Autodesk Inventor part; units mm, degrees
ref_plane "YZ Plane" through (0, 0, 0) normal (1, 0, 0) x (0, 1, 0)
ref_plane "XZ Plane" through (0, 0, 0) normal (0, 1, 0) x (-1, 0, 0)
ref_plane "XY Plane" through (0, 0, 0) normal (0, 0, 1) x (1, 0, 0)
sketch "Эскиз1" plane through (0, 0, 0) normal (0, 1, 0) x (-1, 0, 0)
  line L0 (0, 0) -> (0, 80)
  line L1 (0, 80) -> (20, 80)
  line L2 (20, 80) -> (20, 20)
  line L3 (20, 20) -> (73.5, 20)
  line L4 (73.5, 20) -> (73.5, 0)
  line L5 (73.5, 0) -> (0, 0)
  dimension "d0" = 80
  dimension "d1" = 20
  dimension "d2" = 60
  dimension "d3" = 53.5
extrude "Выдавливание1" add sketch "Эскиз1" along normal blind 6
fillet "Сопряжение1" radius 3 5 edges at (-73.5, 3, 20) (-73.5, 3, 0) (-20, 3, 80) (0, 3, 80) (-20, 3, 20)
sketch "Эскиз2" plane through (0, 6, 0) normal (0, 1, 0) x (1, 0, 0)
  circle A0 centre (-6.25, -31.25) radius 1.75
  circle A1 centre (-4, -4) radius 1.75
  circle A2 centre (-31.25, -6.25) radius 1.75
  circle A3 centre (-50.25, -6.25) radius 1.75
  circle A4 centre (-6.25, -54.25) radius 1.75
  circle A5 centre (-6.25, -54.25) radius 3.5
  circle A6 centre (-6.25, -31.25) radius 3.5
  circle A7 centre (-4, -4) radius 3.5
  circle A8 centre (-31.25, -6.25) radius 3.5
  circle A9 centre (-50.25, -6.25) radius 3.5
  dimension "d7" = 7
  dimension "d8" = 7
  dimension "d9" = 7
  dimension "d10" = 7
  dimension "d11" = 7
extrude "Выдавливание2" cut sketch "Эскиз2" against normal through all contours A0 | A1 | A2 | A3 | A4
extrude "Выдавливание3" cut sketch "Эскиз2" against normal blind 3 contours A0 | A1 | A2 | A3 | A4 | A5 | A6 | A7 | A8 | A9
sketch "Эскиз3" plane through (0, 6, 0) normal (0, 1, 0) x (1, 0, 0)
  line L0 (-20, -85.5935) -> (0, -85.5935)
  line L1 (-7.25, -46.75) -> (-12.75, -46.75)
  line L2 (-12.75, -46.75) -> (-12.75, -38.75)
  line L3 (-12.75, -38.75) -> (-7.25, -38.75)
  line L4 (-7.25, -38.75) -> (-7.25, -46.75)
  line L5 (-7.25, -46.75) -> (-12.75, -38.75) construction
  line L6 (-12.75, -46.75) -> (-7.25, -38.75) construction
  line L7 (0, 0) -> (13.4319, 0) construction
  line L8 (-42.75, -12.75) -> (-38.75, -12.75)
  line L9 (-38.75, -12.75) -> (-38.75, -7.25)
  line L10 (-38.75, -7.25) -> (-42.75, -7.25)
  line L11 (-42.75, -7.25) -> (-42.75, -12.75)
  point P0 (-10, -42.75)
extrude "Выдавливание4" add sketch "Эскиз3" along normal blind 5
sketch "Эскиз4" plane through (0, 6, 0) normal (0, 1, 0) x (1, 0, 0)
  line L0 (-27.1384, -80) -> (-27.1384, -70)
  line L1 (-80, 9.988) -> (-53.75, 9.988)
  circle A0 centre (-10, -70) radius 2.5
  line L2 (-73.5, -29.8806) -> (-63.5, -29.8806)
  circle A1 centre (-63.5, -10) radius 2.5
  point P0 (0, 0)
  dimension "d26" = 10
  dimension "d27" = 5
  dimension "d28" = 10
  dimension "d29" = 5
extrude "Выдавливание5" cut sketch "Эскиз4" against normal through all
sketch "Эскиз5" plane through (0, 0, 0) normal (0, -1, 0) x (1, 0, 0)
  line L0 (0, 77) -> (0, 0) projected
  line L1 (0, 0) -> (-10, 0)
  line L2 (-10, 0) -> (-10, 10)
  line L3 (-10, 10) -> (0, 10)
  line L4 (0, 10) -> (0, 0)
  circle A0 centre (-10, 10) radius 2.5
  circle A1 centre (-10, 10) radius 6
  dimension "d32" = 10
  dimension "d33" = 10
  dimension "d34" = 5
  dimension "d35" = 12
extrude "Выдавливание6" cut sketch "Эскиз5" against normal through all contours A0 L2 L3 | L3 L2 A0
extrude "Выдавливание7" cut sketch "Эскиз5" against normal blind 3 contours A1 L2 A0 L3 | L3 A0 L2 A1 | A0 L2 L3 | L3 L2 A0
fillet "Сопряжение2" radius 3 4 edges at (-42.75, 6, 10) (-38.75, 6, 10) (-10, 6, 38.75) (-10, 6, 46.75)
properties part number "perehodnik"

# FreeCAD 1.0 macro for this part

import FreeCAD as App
import Part
import Sketcher


def edges_at(feature, points):
    """Names of the edges that pass closest to the given points."""
    edges = feature.Shape.Edges
    near = lambda p: min(range(len(edges)), key=lambda i: edges[i].distToShape(Part.Vertex(*p))[0])
    return sorted({f"Edge{near(p) + 1}" for p in points})


def add_polygon(sketch, points):
    """Adds a closed chain of lines whose ends are joined by coincident constraints."""
    first, n = sketch.GeometryCount, len(points)
    for a, b in zip(points, points[1:] + points[:1]):
        sketch.addGeometry(Part.LineSegment(App.Vector(*a, 0), App.Vector(*b, 0)), False)
    for i in range(n):
        sketch.addConstraint(Sketcher.Constraint("Coincident", first + i, 2, first + (i + 1) % n, 1))

doc = App.newDocument("Part")
body = doc.addObject("PartDesign::Body", "Body")

sketch1 = body.newObject("Sketcher::SketchObject", "Sketch")
sketch1.AttachmentSupport = (doc.getObject("XZ_Plane"), [""])
sketch1.MapMode = "FlatFace"
add_polygon(sketch1, [(0, 80), (0, 0), (-74, 0), (-74, 20), (-20, 20), (-20, 80)])
sketch1.addConstraint(Sketcher.Constraint("Vertical", 0))
sketch1.addConstraint(Sketcher.Constraint("Horizontal", 1))
sketch1.addConstraint(Sketcher.Constraint("Vertical", 2))
sketch1.addConstraint(Sketcher.Constraint("Horizontal", 3))
sketch1.addConstraint(Sketcher.Constraint("Vertical", 4))
sketch1.addConstraint(Sketcher.Constraint("Horizontal", 5))
sketch1.addConstraint(Sketcher.Constraint("Coincident", 0, 2, -1, 1))
sketch1.addConstraint(Sketcher.Constraint("Equal", 5, 2))
sketch1.addConstraint(Sketcher.Constraint("DistanceX", 5, 1, 5, 2, 20.0))
sketch1.addConstraint(Sketcher.Constraint("DistanceY", 0, 2, 0, 1, 80.0))
sketch1.addConstraint(Sketcher.Constraint("DistanceX", 3, 1, 3, 2, 53.5))
pad1 = body.newObject("PartDesign::Pad", "Pad")
pad1.Profile = sketch1
pad1.Length = 6
pad1.Reversed = True
doc.recompute()

fillet = body.newObject("PartDesign::Fillet", "Fillet")
fillet.Base = (pad1, edges_at(pad1, [
    (-73.5, 3, 20),
    (-73.5, 3, 0),
    (-20, 3, 80),
    (0, 3, 80),
    (-20, 3, 20),
]))
fillet.Radius = 3

sketch2 = body.newObject("Sketcher::SketchObject", "Sketch001")
sketch2.AttachmentSupport = (doc.getObject("XZ_Plane"), [""])
sketch2.MapMode = "FlatFace"
sketch2.AttachmentOffset = App.Placement(App.Vector(0, 0, -6), App.Rotation())
sketch2.addGeometry(Part.Circle(App.Vector(-6.2, 31.2, 0), App.Vector(0, 0, 1), 1.8), False)
sketch2.addGeometry(Part.Circle(App.Vector(-4, 4, 0), App.Vector(0, 0, 1), 1.8), False)
sketch2.addGeometry(Part.Circle(App.Vector(-31.2, 6.2, 0), App.Vector(0, 0, 1), 1.8), False)
sketch2.addGeometry(Part.Circle(App.Vector(-50.2, 6.2, 0), App.Vector(0, 0, 1), 1.8), False)
sketch2.addGeometry(Part.Circle(App.Vector(-6.2, 54.2, 0), App.Vector(0, 0, 1), 1.8), False)
sketch2.addConstraint(Sketcher.Constraint("Equal", 0, 1))
sketch2.addConstraint(Sketcher.Constraint("Equal", 1, 2))
sketch2.addConstraint(Sketcher.Constraint("Equal", 2, 3))
sketch2.addConstraint(Sketcher.Constraint("Equal", 3, 4))
sketch2.addConstraint(Sketcher.Constraint("Horizontal", 2, 3, 3, 3))
sketch2.addConstraint(Sketcher.Constraint("Vertical", 0, 3, 4, 3))
sketch2.addConstraint(Sketcher.Constraint("Diameter", 0, 3.5))
sketch2.addConstraint(Sketcher.Constraint("DistanceX", 1, 3, -1, 1, 4.0))
sketch2.addConstraint(Sketcher.Constraint("DistanceY", -1, 1, 1, 3, 4.0))
sketch2.addConstraint(Sketcher.Constraint("DistanceX", 2, 3, 0, 3, 25.0))
sketch2.addConstraint(Sketcher.Constraint("DistanceY", 2, 3, 0, 3, 25.0))
sketch2.addConstraint(Sketcher.Constraint("DistanceX", 3, 3, 2, 3, 19.0))
sketch2.addConstraint(Sketcher.Constraint("DistanceY", 0, 3, 4, 3, 23.0))
sketch2.addConstraint(Sketcher.Constraint("DistanceX", 0, 3, -1, 1, 6.25))
sketch2.addConstraint(Sketcher.Constraint("DistanceY", -1, 1, 0, 3, 31.25))
pocket1 = body.newObject("PartDesign::Pocket", "Pocket")
pocket1.Profile = sketch2
pocket1.Type = "ThroughAll"
pocket1.Reversed = True

sketch3 = body.newObject("Sketcher::SketchObject", "Sketch002")
sketch3.AttachmentSupport = (doc.getObject("XZ_Plane"), [""])
sketch3.MapMode = "FlatFace"
sketch3.AttachmentOffset = App.Placement(App.Vector(0, 0, -6), App.Rotation())
sketch3.addGeometry(Part.Circle(App.Vector(-6.2, 31.2, 0), App.Vector(0, 0, 1), 3.5), False)
sketch3.addGeometry(Part.Circle(App.Vector(-4, 4, 0), App.Vector(0, 0, 1), 3.5), False)
sketch3.addGeometry(Part.Circle(App.Vector(-31.2, 6.2, 0), App.Vector(0, 0, 1), 3.5), False)
sketch3.addGeometry(Part.Circle(App.Vector(-50.2, 6.2, 0), App.Vector(0, 0, 1), 3.5), False)
sketch3.addGeometry(Part.Circle(App.Vector(-6.2, 54.2, 0), App.Vector(0, 0, 1), 3.5), False)
sketch3.addConstraint(Sketcher.Constraint("Equal", 0, 1))
sketch3.addConstraint(Sketcher.Constraint("Equal", 1, 2))
sketch3.addConstraint(Sketcher.Constraint("Equal", 2, 3))
sketch3.addConstraint(Sketcher.Constraint("Equal", 3, 4))
sketch3.addConstraint(Sketcher.Constraint("Horizontal", 2, 3, 3, 3))
sketch3.addConstraint(Sketcher.Constraint("Vertical", 0, 3, 4, 3))
sketch3.addConstraint(Sketcher.Constraint("Diameter", 0, 7.0))
sketch3.addConstraint(Sketcher.Constraint("DistanceX", 1, 3, -1, 1, 4.0))
sketch3.addConstraint(Sketcher.Constraint("DistanceY", -1, 1, 1, 3, 4.0))
sketch3.addConstraint(Sketcher.Constraint("DistanceX", 2, 3, 0, 3, 25.0))
sketch3.addConstraint(Sketcher.Constraint("DistanceY", 2, 3, 0, 3, 25.0))
sketch3.addConstraint(Sketcher.Constraint("DistanceX", 3, 3, 2, 3, 19.0))
sketch3.addConstraint(Sketcher.Constraint("DistanceY", 0, 3, 4, 3, 23.0))
sketch3.addConstraint(Sketcher.Constraint("DistanceX", 0, 3, -1, 1, 6.25))
sketch3.addConstraint(Sketcher.Constraint("DistanceY", -1, 1, 0, 3, 31.25))
pocket2 = body.newObject("PartDesign::Pocket", "Pocket001")
pocket2.Profile = sketch3
pocket2.Length = 3
pocket2.Reversed = True

sketch4 = body.newObject("Sketcher::SketchObject", "Sketch003")
sketch4.AttachmentSupport = (doc.getObject("XZ_Plane"), [""])
sketch4.MapMode = "FlatFace"
sketch4.AttachmentOffset = App.Placement(App.Vector(0, 0, -6), App.Rotation())
add_polygon(sketch4, [(-12.8, 46.8), (-7.2, 46.8), (-7.2, 38.8), (-12.8, 38.8)])
add_polygon(sketch4, [(-42.8, 7.2), (-42.8, 12.8), (-38.8, 12.8), (-38.8, 7.2)])
sketch4.addConstraint(Sketcher.Constraint("Horizontal", 0))
sketch4.addConstraint(Sketcher.Constraint("Vertical", 1))
sketch4.addConstraint(Sketcher.Constraint("Horizontal", 2))
sketch4.addConstraint(Sketcher.Constraint("Vertical", 3))
sketch4.addConstraint(Sketcher.Constraint("Vertical", 4))
sketch4.addConstraint(Sketcher.Constraint("Horizontal", 5))
sketch4.addConstraint(Sketcher.Constraint("Vertical", 6))
sketch4.addConstraint(Sketcher.Constraint("Horizontal", 7))
sketch4.addConstraint(Sketcher.Constraint("Equal", 2, 4))
sketch4.addConstraint(Sketcher.Constraint("DistanceX", 5, 1, 5, 2, 4.0))
sketch4.addConstraint(Sketcher.Constraint("DistanceY", 1, 2, 1, 1, 8.0))
sketch4.addConstraint(Sketcher.Constraint("DistanceX", 0, 1, 0, 2, 5.5))
sketch4.addConstraint(Sketcher.Constraint("DistanceX", 4, 2, 2, 2, 30.0))
sketch4.addConstraint(Sketcher.Constraint("DistanceY", 4, 2, 2, 2, 26.0))
sketch4.addConstraint(Sketcher.Constraint("DistanceX", 0, 2, -1, 1, 7.25))
sketch4.addConstraint(Sketcher.Constraint("DistanceY", -1, 1, 0, 2, 46.75))
pad2 = body.newObject("PartDesign::Pad", "Pad001")
pad2.Profile = sketch4
pad2.Length = 5
pad2.Reversed = True

sketch5 = body.newObject("Sketcher::SketchObject", "Sketch004")
sketch5.AttachmentSupport = (doc.getObject("XZ_Plane"), [""])
sketch5.MapMode = "FlatFace"
sketch5.AttachmentOffset = App.Placement(App.Vector(0, 0, -6), App.Rotation())
sketch5.addGeometry(Part.Circle(App.Vector(-10, 70, 0), App.Vector(0, 0, 1), 2.5), False)
sketch5.addGeometry(Part.Circle(App.Vector(-63.5, 10, 0), App.Vector(0, 0, 1), 2.5), False)
sketch5.addConstraint(Sketcher.Constraint("Equal", 0, 1))
sketch5.addConstraint(Sketcher.Constraint("Diameter", 0, 5.0))
sketch5.addConstraint(Sketcher.Constraint("DistanceX", 0, 3, -1, 1, 10.0))
sketch5.addConstraint(Sketcher.Constraint("DistanceY", -1, 1, 1, 3, 10.0))
sketch5.addConstraint(Sketcher.Constraint("DistanceY", -1, 1, 0, 3, 70.0))
sketch5.addConstraint(Sketcher.Constraint("DistanceX", 1, 3, -1, 1, 63.5))
pocket3 = body.newObject("PartDesign::Pocket", "Pocket002")
pocket3.Profile = sketch5
pocket3.Type = "ThroughAll"
pocket3.Reversed = True

sketch6 = body.newObject("Sketcher::SketchObject", "Sketch005")
sketch6.AttachmentSupport = (doc.getObject("XZ_Plane"), [""])
sketch6.MapMode = "FlatFace"
sketch6.addGeometry(Part.Circle(App.Vector(-10, 10, 0), App.Vector(0, 0, 1), 2.5), False)
sketch6.addConstraint(Sketcher.Constraint("Diameter", 0, 5.0))
sketch6.addConstraint(Sketcher.Constraint("DistanceX", 0, 3, -1, 1, 10.0))
sketch6.addConstraint(Sketcher.Constraint("DistanceY", -1, 1, 0, 3, 10.0))
pocket4 = body.newObject("PartDesign::Pocket", "Pocket003")
pocket4.Profile = sketch6
pocket4.Type = "ThroughAll"

sketch7 = body.newObject("Sketcher::SketchObject", "Sketch006")
sketch7.AttachmentSupport = (doc.getObject("XZ_Plane"), [""])
sketch7.MapMode = "FlatFace"
sketch7.addGeometry(Part.Circle(App.Vector(-10, 10, 0), App.Vector(0, 0, 1), 6), False)
sketch7.addConstraint(Sketcher.Constraint("Diameter", 0, 12.0))
sketch7.addConstraint(Sketcher.Constraint("DistanceX", 0, 3, -1, 1, 10.0))
sketch7.addConstraint(Sketcher.Constraint("DistanceY", -1, 1, 0, 3, 10.0))
pocket5 = body.newObject("PartDesign::Pocket", "Pocket004")
pocket5.Profile = sketch7
pocket5.Length = 3
doc.recompute()

fillet2 = body.newObject("PartDesign::Fillet", "Fillet001")
fillet2.Base = (pocket5, edges_at(pocket5, [
    (-42.75, 6, 10),
    (-38.75, 6, 10),
    (-10, 6, 38.75),
    (-10, 6, 46.75),
]))
fillet2.Radius = 3

doc.recompute()
